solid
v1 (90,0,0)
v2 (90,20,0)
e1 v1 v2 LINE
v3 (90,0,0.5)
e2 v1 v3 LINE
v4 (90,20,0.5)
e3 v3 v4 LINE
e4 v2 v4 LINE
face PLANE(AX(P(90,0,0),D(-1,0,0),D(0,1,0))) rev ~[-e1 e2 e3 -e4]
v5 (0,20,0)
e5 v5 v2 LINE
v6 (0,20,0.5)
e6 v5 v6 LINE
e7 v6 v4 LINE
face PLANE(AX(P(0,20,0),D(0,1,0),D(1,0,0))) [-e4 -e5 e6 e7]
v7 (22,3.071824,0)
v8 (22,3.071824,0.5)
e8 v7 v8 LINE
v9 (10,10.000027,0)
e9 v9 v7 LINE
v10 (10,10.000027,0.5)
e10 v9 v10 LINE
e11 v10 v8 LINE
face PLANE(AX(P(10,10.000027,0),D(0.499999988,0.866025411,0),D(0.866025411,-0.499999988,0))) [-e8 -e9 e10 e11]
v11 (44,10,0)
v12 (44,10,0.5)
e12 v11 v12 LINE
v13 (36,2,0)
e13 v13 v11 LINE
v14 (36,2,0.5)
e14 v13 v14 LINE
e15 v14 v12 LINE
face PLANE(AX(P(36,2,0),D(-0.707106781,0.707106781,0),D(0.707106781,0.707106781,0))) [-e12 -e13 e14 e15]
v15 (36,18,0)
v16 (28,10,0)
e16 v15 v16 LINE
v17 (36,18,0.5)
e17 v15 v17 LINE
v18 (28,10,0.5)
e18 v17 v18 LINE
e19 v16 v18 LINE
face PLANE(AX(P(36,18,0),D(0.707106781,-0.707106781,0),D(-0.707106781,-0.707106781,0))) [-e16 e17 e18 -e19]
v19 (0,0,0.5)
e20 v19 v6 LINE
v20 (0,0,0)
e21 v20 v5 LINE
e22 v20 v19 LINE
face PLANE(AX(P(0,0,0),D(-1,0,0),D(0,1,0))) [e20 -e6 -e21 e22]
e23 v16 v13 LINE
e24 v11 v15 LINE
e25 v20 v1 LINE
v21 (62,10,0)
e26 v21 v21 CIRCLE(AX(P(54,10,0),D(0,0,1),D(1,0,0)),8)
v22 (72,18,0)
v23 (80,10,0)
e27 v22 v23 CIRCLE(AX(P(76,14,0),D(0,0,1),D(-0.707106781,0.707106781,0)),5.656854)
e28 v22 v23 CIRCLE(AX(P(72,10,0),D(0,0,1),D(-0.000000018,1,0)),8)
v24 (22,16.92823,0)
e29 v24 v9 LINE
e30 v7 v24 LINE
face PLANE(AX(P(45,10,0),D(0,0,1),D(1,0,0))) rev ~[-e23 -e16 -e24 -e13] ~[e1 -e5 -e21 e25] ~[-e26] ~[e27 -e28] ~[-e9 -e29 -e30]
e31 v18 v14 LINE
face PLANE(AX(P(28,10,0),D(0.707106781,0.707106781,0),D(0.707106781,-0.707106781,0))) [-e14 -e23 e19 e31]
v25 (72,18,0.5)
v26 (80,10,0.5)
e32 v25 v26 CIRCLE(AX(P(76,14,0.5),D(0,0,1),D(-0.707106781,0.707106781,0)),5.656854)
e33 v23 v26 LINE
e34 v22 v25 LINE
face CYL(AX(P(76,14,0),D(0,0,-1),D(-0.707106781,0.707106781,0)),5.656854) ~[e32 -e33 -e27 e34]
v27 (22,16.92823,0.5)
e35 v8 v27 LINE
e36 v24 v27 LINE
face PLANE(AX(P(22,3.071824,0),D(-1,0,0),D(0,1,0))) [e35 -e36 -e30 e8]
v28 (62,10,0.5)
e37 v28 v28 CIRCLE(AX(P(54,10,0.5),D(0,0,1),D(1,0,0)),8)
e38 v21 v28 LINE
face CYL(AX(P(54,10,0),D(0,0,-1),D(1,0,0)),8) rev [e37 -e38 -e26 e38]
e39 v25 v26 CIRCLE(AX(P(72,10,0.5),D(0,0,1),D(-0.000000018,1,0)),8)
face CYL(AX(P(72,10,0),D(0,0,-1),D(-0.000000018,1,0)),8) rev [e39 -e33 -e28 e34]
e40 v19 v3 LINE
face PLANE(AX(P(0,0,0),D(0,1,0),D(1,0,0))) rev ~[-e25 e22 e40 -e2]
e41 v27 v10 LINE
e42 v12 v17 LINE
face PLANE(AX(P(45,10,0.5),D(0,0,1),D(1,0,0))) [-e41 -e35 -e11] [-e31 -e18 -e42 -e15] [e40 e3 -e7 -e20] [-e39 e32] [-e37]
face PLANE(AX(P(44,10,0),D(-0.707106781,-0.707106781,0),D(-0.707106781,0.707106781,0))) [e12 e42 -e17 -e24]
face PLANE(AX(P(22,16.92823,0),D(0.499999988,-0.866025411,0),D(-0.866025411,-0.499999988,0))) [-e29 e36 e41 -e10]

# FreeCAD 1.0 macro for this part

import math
import FreeCAD as App
import Part
import Sketcher
from FreeCAD import Vector
Q = App.Units.Quantity

doc = App.newDocument("Part")
body = doc.addObject("PartDesign::Body", "Body")

# Sketch on XY plane
sketch1 = body.newObject("Sketcher::SketchObject", "Sketch")
sketch1.AttachmentSupport = (doc.getObject("XY_Plane"), [""])
sketch1.MapMode = "FlatFace"
sketch1.addGeometry(Part.LineSegment(Vector(0, 20, 0), Vector(0, 0, 0)), False)
sketch1.addGeometry(Part.LineSegment(Vector(0, 0, 0), Vector(90, 0, 0)), False)
sketch1.addGeometry(Part.LineSegment(Vector(90, 0, 0), Vector(90, 20, 0)), False)
sketch1.addGeometry(Part.LineSegment(Vector(90, 20, 0), Vector(0, 20, 0)), False)
sketch1.addGeometry(Part.LineSegment(Vector(22, 16.92823, 0), Vector(22, 3.071824, 0)), False)
sketch1.addGeometry(Part.LineSegment(Vector(22, 3.071824, 0), Vector(10, 10.000027, 0)), False)
sketch1.addGeometry(Part.LineSegment(Vector(10, 10.000027, 0), Vector(22, 16.92823, 0)), False)
sketch1.addGeometry(Part.LineSegment(Vector(36, 18, 0), Vector(44, 10, 0)), False)
sketch1.addGeometry(Part.LineSegment(Vector(44, 10, 0), Vector(36, 2, 0)), False)
sketch1.addGeometry(Part.LineSegment(Vector(36, 2, 0), Vector(28, 10, 0)), False)
sketch1.addGeometry(Part.LineSegment(Vector(28, 10, 0), Vector(36, 18, 0)), False)
sketch1.addGeometry(Part.Circle(Vector(54, 10, 0), Vector(0, 0, 1), 8), False)
sketch1.addGeometry(Part.ArcOfCircle(Part.Circle(Vector(72, 10, 0), Vector(0, 0, 1), 8), math.radians(90.000001), math.radians(359.999999)), False)
sketch1.addGeometry(Part.ArcOfCircle(Part.Circle(Vector(76, 14, 0), Vector(0, 0, 1), 5.656854), math.radians(135), math.radians(315)), False)
sketch1.addConstraint(Sketcher.Constraint("Coincident", 0, 2, 1, 1))
sketch1.addConstraint(Sketcher.Constraint("Coincident", 1, 2, 2, 1))
sketch1.addConstraint(Sketcher.Constraint("Coincident", 2, 2, 3, 1))
sketch1.addConstraint(Sketcher.Constraint("Coincident", 3, 2, 0, 1))
sketch1.addConstraint(Sketcher.Constraint("Coincident", 4, 2, 5, 1))
sketch1.addConstraint(Sketcher.Constraint("Coincident", 5, 2, 6, 1))
sketch1.addConstraint(Sketcher.Constraint("Coincident", 6, 2, 4, 1))
sketch1.addConstraint(Sketcher.Constraint("Coincident", 7, 2, 8, 1))
sketch1.addConstraint(Sketcher.Constraint("Coincident", 8, 2, 9, 1))
sketch1.addConstraint(Sketcher.Constraint("Coincident", 9, 2, 10, 1))
sketch1.addConstraint(Sketcher.Constraint("Coincident", 10, 2, 7, 1))
sketch1.addConstraint(Sketcher.Constraint("Coincident", 12, 1, 13, 1))
sketch1.addConstraint(Sketcher.Constraint("Coincident", 13, 2, 12, 2))
sketch1.addConstraint(Sketcher.Constraint("Vertical", 0))
sketch1.addConstraint(Sketcher.Constraint("Horizontal", 1))
sketch1.addConstraint(Sketcher.Constraint("Vertical", 2))
sketch1.addConstraint(Sketcher.Constraint("Horizontal", 3))
sketch1.addConstraint(Sketcher.Constraint("Vertical", 4))
sketch1.addConstraint(Sketcher.Constraint("Coincident", 0, 2, -1, 1))
sketch1.addConstraint(Sketcher.Constraint("Equal", 11, 12))
sketch1.addConstraint(Sketcher.Constraint("Perpendicular", 7, 8))
sketch1.addConstraint(Sketcher.Constraint("Perpendicular", 8, 9))
sketch1.addConstraint(Sketcher.Constraint("Perpendicular", 9, 10))
sketch1.addConstraint(Sketcher.Constraint("Horizontal", 11, 3, 12, 3))
sketch1.addConstraint(Sketcher.Constraint("Horizontal", 12, 3, 7, 2))
sketch1.addConstraint(Sketcher.Constraint("Horizontal", 7, 2, 9, 2))
sketch1.addConstraint(Sketcher.Constraint("Horizontal", 10, 2, 12, 1))
sketch1.addConstraint(Sketcher.Constraint("Horizontal", 9, 2, 13, 2))
sketch1.addConstraint(Sketcher.Constraint("Vertical", 8, 2, 10, 2))
sketch1.addConstraint(Sketcher.Constraint("Equal", 5, 6))
sketch1.addConstraint(Sketcher.Constraint("Diameter", 11, 16.0))
sketch1.addConstraint(Sketcher.Constraint("DistanceX", 1, 1, 1, 2, 90.0))
sketch1.addConstraint(Sketcher.Constraint("DistanceY", 0, 2, 0, 1, 20.0))
sketch1.addConstraint(Sketcher.Constraint("Angle", 5, Q("150.000001 deg")))
sketch1.addConstraint(Sketcher.Constraint("DistanceX", -1, 1, 11, 3, 54.0))
sketch1.addConstraint(Sketcher.Constraint("DistanceY", -1, 1, 11, 3, 10.0))
sketch1.addConstraint(Sketcher.Constraint("DistanceX", -1, 1, 12, 3, 72.0))
sketch1.addConstraint(Sketcher.Constraint("DistanceX", -1, 1, 13, 3, 76.0))
sketch1.addConstraint(Sketcher.Constraint("DistanceY", -1, 1, 13, 3, 14.0))
sketch1.addConstraint(Sketcher.Constraint("DistanceX", -1, 1, 4, 2, 22.0))
sketch1.addConstraint(Sketcher.Constraint("DistanceX", -1, 1, 5, 2, 10.0))
sketch1.addConstraint(Sketcher.Constraint("DistanceX", -1, 1, 7, 2, 44.0))
sketch1.addConstraint(Sketcher.Constraint("DistanceY", -1, 1, 6, 2, 16.92823))
pad1 = body.newObject("PartDesign::Pad", "Pad")
pad1.Profile = sketch1
pad1.Length = 0.5

doc.recompute()
